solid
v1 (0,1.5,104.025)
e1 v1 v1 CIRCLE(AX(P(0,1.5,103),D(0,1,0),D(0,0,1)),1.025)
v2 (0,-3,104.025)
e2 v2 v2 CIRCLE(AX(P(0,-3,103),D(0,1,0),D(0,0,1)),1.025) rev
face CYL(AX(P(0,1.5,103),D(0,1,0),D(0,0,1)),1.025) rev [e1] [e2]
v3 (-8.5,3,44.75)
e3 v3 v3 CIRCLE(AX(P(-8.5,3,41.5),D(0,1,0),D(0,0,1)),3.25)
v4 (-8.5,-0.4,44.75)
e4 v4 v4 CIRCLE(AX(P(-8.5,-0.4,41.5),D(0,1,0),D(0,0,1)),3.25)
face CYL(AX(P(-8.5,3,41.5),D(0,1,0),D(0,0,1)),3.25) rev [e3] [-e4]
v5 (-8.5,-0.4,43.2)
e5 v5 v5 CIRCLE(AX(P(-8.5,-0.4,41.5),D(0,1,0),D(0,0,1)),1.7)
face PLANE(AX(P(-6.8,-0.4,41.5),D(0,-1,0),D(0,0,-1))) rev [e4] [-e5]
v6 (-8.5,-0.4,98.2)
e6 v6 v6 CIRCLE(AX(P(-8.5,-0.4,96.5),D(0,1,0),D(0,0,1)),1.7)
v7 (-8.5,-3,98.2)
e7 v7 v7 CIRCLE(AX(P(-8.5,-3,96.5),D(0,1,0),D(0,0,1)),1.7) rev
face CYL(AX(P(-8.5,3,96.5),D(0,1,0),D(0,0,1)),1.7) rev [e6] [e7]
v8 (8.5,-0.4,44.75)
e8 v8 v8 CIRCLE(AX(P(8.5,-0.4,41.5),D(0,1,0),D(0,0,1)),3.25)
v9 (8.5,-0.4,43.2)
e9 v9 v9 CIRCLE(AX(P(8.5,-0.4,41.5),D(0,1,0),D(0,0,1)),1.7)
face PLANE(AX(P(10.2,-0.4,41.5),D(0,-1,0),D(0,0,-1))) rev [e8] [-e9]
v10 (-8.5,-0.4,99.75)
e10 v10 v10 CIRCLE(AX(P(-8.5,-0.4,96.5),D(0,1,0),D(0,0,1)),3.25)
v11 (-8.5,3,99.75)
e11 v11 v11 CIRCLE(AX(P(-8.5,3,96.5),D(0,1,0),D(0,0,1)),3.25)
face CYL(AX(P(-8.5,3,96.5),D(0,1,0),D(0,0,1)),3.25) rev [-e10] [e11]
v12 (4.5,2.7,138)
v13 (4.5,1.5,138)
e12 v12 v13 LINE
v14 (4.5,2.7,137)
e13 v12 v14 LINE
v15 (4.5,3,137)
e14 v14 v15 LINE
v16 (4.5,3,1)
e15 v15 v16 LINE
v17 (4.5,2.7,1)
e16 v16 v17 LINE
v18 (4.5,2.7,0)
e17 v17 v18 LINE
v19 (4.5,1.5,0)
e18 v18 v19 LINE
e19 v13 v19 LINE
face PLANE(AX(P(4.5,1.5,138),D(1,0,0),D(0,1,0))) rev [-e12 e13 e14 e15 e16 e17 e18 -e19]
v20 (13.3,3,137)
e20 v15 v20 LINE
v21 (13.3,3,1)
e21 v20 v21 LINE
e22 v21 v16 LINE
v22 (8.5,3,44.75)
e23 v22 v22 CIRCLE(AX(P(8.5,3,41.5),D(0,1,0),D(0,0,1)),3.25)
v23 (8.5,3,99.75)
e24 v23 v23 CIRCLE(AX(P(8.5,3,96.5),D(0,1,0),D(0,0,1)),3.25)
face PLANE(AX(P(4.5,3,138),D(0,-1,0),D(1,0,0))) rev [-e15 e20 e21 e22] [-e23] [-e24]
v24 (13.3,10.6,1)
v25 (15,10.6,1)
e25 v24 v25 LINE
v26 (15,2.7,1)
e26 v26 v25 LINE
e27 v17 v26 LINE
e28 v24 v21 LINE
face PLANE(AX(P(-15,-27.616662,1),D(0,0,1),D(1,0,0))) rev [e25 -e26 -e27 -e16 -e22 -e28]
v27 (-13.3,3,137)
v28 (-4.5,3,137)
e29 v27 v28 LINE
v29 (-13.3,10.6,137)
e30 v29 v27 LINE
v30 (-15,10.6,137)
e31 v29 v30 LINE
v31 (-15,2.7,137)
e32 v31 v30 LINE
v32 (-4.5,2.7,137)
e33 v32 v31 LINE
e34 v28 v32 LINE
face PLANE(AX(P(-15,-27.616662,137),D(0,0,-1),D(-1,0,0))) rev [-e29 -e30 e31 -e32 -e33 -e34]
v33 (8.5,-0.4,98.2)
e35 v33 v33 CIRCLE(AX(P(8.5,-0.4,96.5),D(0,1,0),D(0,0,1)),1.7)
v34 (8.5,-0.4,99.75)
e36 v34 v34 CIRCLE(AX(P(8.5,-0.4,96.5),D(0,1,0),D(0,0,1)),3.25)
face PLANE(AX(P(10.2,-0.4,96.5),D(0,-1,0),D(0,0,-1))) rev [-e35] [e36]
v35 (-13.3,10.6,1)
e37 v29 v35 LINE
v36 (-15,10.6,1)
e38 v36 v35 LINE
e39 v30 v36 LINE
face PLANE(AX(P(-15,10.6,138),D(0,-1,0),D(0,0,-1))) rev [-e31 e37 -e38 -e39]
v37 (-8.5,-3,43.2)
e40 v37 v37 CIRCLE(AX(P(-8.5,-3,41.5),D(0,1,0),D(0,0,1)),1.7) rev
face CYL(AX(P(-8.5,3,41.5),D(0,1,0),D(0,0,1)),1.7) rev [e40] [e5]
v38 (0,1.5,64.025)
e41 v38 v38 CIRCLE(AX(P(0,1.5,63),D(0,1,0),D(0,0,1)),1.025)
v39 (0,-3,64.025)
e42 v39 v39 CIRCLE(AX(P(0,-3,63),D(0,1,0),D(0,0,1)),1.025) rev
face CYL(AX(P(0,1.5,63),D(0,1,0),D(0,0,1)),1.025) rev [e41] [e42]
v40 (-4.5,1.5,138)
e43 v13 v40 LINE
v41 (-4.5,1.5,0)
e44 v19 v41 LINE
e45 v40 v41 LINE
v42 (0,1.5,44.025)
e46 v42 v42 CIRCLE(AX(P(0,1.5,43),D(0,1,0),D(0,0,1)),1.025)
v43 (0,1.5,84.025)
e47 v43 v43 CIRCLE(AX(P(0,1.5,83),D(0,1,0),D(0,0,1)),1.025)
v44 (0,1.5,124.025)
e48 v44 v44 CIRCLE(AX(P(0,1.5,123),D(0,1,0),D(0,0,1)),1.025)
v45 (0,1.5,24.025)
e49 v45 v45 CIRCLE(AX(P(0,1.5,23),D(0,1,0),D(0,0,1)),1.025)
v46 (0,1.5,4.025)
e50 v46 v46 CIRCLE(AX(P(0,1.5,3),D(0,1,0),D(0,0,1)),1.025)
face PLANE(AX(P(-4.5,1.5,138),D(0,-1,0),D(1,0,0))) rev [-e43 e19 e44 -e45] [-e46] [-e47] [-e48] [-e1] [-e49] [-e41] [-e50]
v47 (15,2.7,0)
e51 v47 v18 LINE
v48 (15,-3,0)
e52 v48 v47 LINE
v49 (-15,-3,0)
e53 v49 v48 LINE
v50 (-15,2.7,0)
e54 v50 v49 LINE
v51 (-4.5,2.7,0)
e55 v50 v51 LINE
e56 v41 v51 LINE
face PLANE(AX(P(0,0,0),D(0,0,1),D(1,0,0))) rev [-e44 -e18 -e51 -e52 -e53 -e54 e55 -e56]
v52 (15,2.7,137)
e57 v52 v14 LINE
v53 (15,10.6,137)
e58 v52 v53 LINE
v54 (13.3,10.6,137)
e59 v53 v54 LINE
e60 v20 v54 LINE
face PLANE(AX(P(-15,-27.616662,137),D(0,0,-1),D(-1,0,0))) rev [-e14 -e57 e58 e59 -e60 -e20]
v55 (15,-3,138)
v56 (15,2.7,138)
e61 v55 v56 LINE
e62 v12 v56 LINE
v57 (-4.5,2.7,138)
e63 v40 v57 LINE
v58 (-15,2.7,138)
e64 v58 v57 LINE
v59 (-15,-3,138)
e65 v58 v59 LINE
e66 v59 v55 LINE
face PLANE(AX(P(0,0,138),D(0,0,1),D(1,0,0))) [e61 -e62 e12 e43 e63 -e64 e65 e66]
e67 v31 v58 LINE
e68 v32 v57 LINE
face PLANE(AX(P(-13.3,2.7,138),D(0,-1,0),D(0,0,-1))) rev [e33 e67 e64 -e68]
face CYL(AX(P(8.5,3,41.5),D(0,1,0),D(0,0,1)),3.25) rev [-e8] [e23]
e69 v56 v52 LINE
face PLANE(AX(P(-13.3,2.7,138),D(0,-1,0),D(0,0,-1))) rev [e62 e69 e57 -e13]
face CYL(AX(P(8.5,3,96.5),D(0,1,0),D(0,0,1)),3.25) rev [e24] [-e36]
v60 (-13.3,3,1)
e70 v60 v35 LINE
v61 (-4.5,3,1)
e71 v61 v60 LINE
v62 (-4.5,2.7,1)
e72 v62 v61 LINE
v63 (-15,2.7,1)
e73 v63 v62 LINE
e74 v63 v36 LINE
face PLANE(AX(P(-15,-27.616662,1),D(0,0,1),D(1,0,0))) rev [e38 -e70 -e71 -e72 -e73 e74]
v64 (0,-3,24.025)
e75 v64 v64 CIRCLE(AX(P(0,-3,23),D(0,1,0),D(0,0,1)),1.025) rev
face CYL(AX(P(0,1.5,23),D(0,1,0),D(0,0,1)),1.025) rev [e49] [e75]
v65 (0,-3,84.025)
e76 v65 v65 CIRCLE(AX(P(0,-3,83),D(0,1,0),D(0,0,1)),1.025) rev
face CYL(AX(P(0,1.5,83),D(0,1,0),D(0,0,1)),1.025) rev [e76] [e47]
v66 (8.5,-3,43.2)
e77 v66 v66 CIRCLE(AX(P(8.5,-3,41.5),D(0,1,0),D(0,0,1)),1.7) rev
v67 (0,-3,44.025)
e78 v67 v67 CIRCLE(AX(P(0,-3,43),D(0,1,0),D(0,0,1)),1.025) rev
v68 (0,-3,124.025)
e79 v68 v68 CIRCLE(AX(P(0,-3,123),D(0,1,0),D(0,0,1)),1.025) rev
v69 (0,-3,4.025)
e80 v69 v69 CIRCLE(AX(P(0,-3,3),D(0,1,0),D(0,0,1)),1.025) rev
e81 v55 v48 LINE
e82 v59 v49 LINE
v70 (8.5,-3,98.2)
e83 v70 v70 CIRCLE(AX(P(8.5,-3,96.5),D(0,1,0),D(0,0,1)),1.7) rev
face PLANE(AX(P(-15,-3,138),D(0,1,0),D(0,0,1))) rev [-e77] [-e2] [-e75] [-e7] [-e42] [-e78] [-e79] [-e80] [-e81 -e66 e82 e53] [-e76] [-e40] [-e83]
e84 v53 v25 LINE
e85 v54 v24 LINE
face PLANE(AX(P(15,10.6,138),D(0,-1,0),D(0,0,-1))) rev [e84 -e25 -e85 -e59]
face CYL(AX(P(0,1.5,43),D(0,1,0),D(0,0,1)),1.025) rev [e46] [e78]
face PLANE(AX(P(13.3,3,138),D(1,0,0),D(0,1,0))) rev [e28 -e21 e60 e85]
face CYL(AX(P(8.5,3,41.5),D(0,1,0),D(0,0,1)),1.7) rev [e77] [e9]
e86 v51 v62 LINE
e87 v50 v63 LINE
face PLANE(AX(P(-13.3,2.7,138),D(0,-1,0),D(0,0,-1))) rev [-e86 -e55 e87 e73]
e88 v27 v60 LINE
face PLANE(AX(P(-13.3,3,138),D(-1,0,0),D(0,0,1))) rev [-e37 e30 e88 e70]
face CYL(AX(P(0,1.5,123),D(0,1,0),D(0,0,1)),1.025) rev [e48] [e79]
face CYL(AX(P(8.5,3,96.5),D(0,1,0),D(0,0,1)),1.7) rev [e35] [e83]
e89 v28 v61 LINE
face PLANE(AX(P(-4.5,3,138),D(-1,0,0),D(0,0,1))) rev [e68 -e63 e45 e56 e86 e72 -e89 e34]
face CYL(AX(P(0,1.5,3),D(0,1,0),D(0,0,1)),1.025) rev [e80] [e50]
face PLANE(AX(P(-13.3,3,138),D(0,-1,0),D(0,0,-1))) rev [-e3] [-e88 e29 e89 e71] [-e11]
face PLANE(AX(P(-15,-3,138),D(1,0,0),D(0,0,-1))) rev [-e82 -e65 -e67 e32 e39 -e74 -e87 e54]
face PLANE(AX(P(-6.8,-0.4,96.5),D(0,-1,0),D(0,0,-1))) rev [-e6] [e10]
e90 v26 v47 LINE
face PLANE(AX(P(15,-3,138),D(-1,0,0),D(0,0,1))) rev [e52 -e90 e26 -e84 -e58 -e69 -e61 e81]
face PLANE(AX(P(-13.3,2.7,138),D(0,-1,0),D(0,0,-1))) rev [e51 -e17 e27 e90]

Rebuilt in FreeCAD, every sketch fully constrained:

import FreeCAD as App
import Part
import Sketcher
Q = App.Units.Quantity

doc = App.newDocument("Part")
body = doc.addObject("PartDesign::Body", "Body")

# Sketch on XY plane
sketch1 = body.newObject("Sketcher::SketchObject", "Sketch")
sketch1.AttachmentSupport = (doc.getObject("XY_Plane"), [""])
sketch1.MapMode = "FlatFace"
sketch1.addGeometry([
    Part.LineSegment(App.Vector(-15, -3, 0), App.Vector(15, -3, 0)),  # 0
    Part.LineSegment(App.Vector(15, -3, 0), App.Vector(15, 10.6, 0)),  # 1
    Part.LineSegment(App.Vector(15, 10.6, 0), App.Vector(13.3, 10.6, 0)),  # 2
    Part.LineSegment(App.Vector(13.3, 10.6, 0), App.Vector(13.3, 3, 0)),  # 3
    Part.LineSegment(App.Vector(13.3, 3, 0), App.Vector(4.5, 3, 0)),  # 4
    Part.LineSegment(App.Vector(4.5, 3, 0), App.Vector(4.5, 1.5, 0)),  # 5
    Part.LineSegment(App.Vector(4.5, 1.5, 0), App.Vector(-4.5, 1.5, 0)),  # 6
    Part.LineSegment(App.Vector(-4.5, 1.5, 0), App.Vector(-4.5, 3, 0)),  # 7
    Part.LineSegment(App.Vector(-4.5, 3, 0), App.Vector(-13.3, 3, 0)),  # 8
    Part.LineSegment(App.Vector(-13.3, 3, 0), App.Vector(-13.3, 10.6, 0)),  # 9
    Part.LineSegment(App.Vector(-13.3, 10.6, 0), App.Vector(-15, 10.6, 0)),  # 10
    Part.LineSegment(App.Vector(-15, 10.6, 0), App.Vector(-15, -3, 0)),  # 11
], False)
sketch1.addConstraint([
    Sketcher.Constraint("Coincident", 0, 2, 1, 1),
    Sketcher.Constraint("Coincident", 1, 2, 2, 1),
    Sketcher.Constraint("Coincident", 2, 2, 3, 1),
    Sketcher.Constraint("Coincident", 3, 2, 4, 1),
    Sketcher.Constraint("Coincident", 4, 2, 5, 1),
    Sketcher.Constraint("Coincident", 5, 2, 6, 1),
    Sketcher.Constraint("Coincident", 6, 2, 7, 1),
    Sketcher.Constraint("Coincident", 7, 2, 8, 1),
    Sketcher.Constraint("Coincident", 8, 2, 9, 1),
    Sketcher.Constraint("Coincident", 9, 2, 10, 1),
    Sketcher.Constraint("Coincident", 10, 2, 11, 1),
    Sketcher.Constraint("Coincident", 11, 2, 0, 1),
    Sketcher.Constraint("Horizontal", 0),
    Sketcher.Constraint("Vertical", 1),
    Sketcher.Constraint("Horizontal", 2),
    Sketcher.Constraint("Vertical", 3),
    Sketcher.Constraint("Horizontal", 4),
    Sketcher.Constraint("Vertical", 5),
    Sketcher.Constraint("Horizontal", 6),
    Sketcher.Constraint("Vertical", 7),
    Sketcher.Constraint("Horizontal", 8),
    Sketcher.Constraint("Vertical", 9),
    Sketcher.Constraint("Horizontal", 10),
    Sketcher.Constraint("Vertical", 11),
    Sketcher.Constraint("Symmetric", 4, 2, 7, 2, -2),
    Sketcher.Constraint("Symmetric", 2, 2, 9, 2, -2),
    Sketcher.Constraint("Equal", 2, 10),
    Sketcher.Constraint("DistanceX", 0, 1, 0, 2, 30.0),
    Sketcher.Constraint("DistanceX", 6, 2, 6, 1, 9.0),
    Sketcher.Constraint("DistanceX", 2, 2, 2, 1, 1.7),
    Sketcher.Constraint("DistanceY", 1, 1, 1, 2, 13.6),
    Sketcher.Constraint("DistanceY", 3, 2, 3, 1, 7.6),
    Sketcher.Constraint("DistanceY", 5, 2, 5, 1, 1.5),
    Sketcher.Constraint("DistanceY", 0, 2, -1, 1, 3.0),
])
pad1 = body.newObject("PartDesign::Pad", "Pad")
pad1.Profile = sketch1
pad1.Length = 138

# Sketch on XZ plane
sketch2 = body.newObject("Sketcher::SketchObject", "Sketch001")
sketch2.AttachmentSupport = (doc.getObject("XZ_Plane"), [""])
sketch2.MapMode = "FlatFace"
sketch2.AttachmentOffset = App.Placement(App.Vector(0, 0, -10.6), App.Rotation())
sketch2.addGeometry([
    Part.LineSegment(App.Vector(-15, 137, 0), App.Vector(-15, 138, 0)),  # 0
    Part.LineSegment(App.Vector(-15, 138, 0), App.Vector(15, 138, 0)),  # 1
    Part.LineSegment(App.Vector(15, 138, 0), App.Vector(15, 137, 0)),  # 2
    Part.LineSegment(App.Vector(15, 137, 0), App.Vector(-15, 137, 0)),  # 3
    Part.LineSegment(App.Vector(-15, 0, 0), App.Vector(-15, 1, 0)),  # 4
    Part.LineSegment(App.Vector(-15, 1, 0), App.Vector(15, 1, 0)),  # 5
    Part.LineSegment(App.Vector(15, 1, 0), App.Vector(15, 0, 0)),  # 6
    Part.LineSegment(App.Vector(15, 0, 0), App.Vector(-15, 0, 0)),  # 7
], False)
sketch2.addConstraint([
    Sketcher.Constraint("Coincident", 0, 2, 1, 1),
    Sketcher.Constraint("Coincident", 1, 2, 2, 1),
    Sketcher.Constraint("Coincident", 2, 2, 3, 1),
    Sketcher.Constraint("Coincident", 3, 2, 0, 1),
    Sketcher.Constraint("Coincident", 4, 2, 5, 1),
    Sketcher.Constraint("Coincident", 5, 2, 6, 1),
    Sketcher.Constraint("Coincident", 6, 2, 7, 1),
    Sketcher.Constraint("Coincident", 7, 2, 4, 1),
    Sketcher.Constraint("Vertical", 0),
    Sketcher.Constraint("Horizontal", 1),
    Sketcher.Constraint("Vertical", 2),
    Sketcher.Constraint("Horizontal", 3),
    Sketcher.Constraint("Vertical", 4),
    Sketcher.Constraint("Horizontal", 5),
    Sketcher.Constraint("Vertical", 6),
    Sketcher.Constraint("Horizontal", 7),
    Sketcher.Constraint("Symmetric", 6, 2, 7, 2, -1, 1),
    Sketcher.Constraint("Vertical", 3, 2, 4, 2),
    Sketcher.Constraint("Vertical", 2, 2, 5, 2),
    Sketcher.Constraint("Equal", 2, 4),
    Sketcher.Constraint("DistanceX", 1, 1, 1, 2, 30.0),
    Sketcher.Constraint("DistanceY", 0, 1, 0, 2, 1.0),
    Sketcher.Constraint("DistanceY", -1, 1, 0, 2, 138.0),
])
pocket1 = body.newObject("PartDesign::Pocket", "Pocket")
pocket1.Profile = sketch2
pocket1.Length = 7.9
pocket1.Reversed = True

# Sketch on XZ plane
sketch3 = body.newObject("Sketcher::SketchObject", "Sketch002")
sketch3.AttachmentSupport = (doc.getObject("XZ_Plane"), [""])
sketch3.MapMode = "FlatFace"
sketch3.AttachmentOffset = App.Placement(App.Vector(0, 0, -3), App.Rotation())
sketch3.addGeometry([
    Part.Circle(App.Vector(-8.5, 96.5, 0), App.Vector(0, 0, 1), 1.7),
    Part.Circle(App.Vector(8.5, 96.5, 0), App.Vector(0, 0, 1), 1.7),
    Part.Circle(App.Vector(8.5, 41.5, 0), App.Vector(0, 0, 1), 1.7),
    Part.Circle(App.Vector(-8.5, 41.5, 0), App.Vector(0, 0, 1), 1.7),
], False)
sketch3.addConstraint([
    Sketcher.Constraint("Equal", 0, 1),
    Sketcher.Constraint("Equal", 1, 2),
    Sketcher.Constraint("Equal", 2, 3),
    Sketcher.Constraint("Symmetric", 0, 3, 1, 3, -2),
    Sketcher.Constraint("Symmetric", 2, 3, 3, 3, -2),
    Sketcher.Constraint("Vertical", 1, 3, 2, 3),
    Sketcher.Constraint("Diameter", 0, 3.4),
    Sketcher.Constraint("DistanceX", 0, 3, 1, 3, 17.0),
    Sketcher.Constraint("DistanceY", 2, 3, 1, 3, 55.0),
    Sketcher.Constraint("DistanceY", -1, 1, 0, 3, 96.5),
])
doc.recompute()
hole = body.newObject("PartDesign::Hole", "Hole")
hole.Profile = sketch3
hole.ThreadType = "None"
hole.Diameter = 3.4
hole.DepthType = "Dimension"
hole.Depth = 6
hole.DrillPoint = "Angled"
hole.DrillPointAngle = 118
hole.HoleCutType = "Counterbore"
hole.HoleCutDiameter = 6.5
hole.HoleCutDepth = 3.4
hole.Reversed = True

# Sketch on YZ plane
sketch4 = body.newObject("Sketcher::SketchObject", "Sketch003")
sketch4.AttachmentSupport = (doc.getObject("YZ_Plane"), [""])
sketch4.MapMode = "FlatFace"
sketch4.addGeometry([
    Part.LineSegment(App.Vector(-3.615882, 123, 0), App.Vector(1.5, 123, 0)),
    Part.LineSegment(App.Vector(1.5, 123, 0), App.Vector(1.5, 124.025, 0)),
    Part.LineSegment(App.Vector(1.5, 124.025, 0), App.Vector(-3, 124.025, 0)),
    Part.LineSegment(App.Vector(-3, 124.025, 0), App.Vector(-3.615882, 123, 0)),
], False)
sketch4.addGeometry(Part.LineSegment(App.Vector(1.5, 123, 0), App.Vector(-3.615882, 123, 0)), True)  # axis
sketch4.addConstraint([
    Sketcher.Constraint("Coincident", 0, 2, 1, 1),
    Sketcher.Constraint("Coincident", 1, 2, 2, 1),
    Sketcher.Constraint("Coincident", 2, 2, 3, 1),
    Sketcher.Constraint("Coincident", 3, 2, 0, 1),
    Sketcher.Constraint("Horizontal", 0),
    Sketcher.Constraint("Vertical", 1),
    Sketcher.Constraint("Horizontal", 2),
    Sketcher.Constraint("Horizontal", 4),
    Sketcher.Constraint("Coincident", 4, 1, 0, 2),
    Sketcher.Constraint("Equal", 0, 4),
    Sketcher.Constraint("Angle", 3, Q("-121 deg")),
    Sketcher.Constraint("DistanceX", 2, 2, 2, 1, 4.5),
    Sketcher.Constraint("DistanceY", -1, 1, 0, 2, 123.0),
    Sketcher.Constraint("DistanceX", 2, 2, -1, 1, 3.0),
    Sketcher.Constraint("DistanceY", 1, 1, 1, 2, 1.025),
])
groove = body.newObject("PartDesign::Groove", "Groove")
groove.Profile = sketch4
groove.ReferenceAxis = (sketch4, ["Axis0"])
groove.Angle = 360
doc.recompute()

linearpattern = body.newObject("PartDesign::LinearPattern", "LinearPattern")
linearpattern.Originals = [groove]
linearpattern.Direction = (doc.getObject("Z_Axis"), [""])
linearpattern.Mode = "offset"
linearpattern.Offset = 20
linearpattern.Occurrences = 7
linearpattern.Reversed = True
body.Tip = linearpattern

doc.recompute()
